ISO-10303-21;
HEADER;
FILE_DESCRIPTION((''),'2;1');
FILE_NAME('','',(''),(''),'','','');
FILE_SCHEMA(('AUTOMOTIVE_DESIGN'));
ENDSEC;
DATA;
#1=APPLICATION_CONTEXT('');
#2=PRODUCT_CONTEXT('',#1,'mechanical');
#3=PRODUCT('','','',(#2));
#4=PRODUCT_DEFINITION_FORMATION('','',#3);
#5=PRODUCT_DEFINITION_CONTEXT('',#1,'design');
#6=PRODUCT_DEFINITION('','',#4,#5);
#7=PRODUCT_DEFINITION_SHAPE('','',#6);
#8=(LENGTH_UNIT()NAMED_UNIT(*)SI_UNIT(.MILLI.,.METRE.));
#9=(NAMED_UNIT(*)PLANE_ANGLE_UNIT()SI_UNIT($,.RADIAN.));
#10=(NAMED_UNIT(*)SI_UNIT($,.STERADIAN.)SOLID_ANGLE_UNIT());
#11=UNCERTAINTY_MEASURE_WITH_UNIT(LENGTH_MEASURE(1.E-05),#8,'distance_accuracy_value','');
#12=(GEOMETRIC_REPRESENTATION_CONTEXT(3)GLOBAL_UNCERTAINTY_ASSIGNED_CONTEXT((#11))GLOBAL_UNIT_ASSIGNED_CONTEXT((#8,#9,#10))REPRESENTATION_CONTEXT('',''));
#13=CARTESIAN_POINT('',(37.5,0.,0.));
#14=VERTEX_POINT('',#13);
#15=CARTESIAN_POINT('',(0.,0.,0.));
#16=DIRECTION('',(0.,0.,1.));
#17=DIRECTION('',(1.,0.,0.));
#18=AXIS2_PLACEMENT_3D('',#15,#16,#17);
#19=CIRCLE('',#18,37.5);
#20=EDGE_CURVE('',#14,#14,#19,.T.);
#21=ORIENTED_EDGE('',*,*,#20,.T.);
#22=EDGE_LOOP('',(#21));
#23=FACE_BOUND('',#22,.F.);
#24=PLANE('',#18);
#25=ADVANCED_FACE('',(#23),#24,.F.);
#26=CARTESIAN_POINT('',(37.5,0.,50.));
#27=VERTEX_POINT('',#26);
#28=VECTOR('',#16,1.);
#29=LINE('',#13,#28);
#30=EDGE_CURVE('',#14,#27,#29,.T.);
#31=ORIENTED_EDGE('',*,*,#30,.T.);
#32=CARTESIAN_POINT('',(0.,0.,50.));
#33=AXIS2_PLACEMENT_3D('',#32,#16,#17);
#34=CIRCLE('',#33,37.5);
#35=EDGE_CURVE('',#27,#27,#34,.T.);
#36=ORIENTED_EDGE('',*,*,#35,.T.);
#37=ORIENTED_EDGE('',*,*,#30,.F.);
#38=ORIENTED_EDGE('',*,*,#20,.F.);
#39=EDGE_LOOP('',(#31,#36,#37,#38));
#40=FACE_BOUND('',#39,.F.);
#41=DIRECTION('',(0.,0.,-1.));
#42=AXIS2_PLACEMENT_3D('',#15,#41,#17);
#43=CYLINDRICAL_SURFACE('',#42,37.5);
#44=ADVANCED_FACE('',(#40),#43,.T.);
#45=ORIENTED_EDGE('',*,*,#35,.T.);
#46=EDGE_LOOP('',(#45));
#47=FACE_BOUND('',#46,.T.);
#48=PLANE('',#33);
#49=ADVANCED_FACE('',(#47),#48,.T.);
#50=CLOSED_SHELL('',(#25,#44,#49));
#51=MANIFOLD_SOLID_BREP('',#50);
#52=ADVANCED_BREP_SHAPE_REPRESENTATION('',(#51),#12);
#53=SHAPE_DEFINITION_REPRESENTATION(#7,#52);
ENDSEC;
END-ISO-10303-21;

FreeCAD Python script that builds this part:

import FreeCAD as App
import Part
import Sketcher

doc = App.newDocument("Part")
body = doc.addObject("PartDesign::Body", "Body")

sketch1 = body.newObject("Sketcher::SketchObject", "Sketch")
sketch1.AttachmentSupport = (doc.getObject("XY_Plane"), [""])
sketch1.MapMode = "FlatFace"
sketch1.addGeometry(Part.Circle(App.Vector(0, 0, 0), App.Vector(0, 0, 1), 38), False)
sketch1.addConstraint(Sketcher.Constraint("Coincident", 0, 3, -1, 1))
sketch1.addConstraint(Sketcher.Constraint("Diameter", 0, 75.0))
pad1 = body.newObject("PartDesign::Pad", "Pad")
pad1.Profile = sketch1
pad1.Length = 50

doc.recompute()
